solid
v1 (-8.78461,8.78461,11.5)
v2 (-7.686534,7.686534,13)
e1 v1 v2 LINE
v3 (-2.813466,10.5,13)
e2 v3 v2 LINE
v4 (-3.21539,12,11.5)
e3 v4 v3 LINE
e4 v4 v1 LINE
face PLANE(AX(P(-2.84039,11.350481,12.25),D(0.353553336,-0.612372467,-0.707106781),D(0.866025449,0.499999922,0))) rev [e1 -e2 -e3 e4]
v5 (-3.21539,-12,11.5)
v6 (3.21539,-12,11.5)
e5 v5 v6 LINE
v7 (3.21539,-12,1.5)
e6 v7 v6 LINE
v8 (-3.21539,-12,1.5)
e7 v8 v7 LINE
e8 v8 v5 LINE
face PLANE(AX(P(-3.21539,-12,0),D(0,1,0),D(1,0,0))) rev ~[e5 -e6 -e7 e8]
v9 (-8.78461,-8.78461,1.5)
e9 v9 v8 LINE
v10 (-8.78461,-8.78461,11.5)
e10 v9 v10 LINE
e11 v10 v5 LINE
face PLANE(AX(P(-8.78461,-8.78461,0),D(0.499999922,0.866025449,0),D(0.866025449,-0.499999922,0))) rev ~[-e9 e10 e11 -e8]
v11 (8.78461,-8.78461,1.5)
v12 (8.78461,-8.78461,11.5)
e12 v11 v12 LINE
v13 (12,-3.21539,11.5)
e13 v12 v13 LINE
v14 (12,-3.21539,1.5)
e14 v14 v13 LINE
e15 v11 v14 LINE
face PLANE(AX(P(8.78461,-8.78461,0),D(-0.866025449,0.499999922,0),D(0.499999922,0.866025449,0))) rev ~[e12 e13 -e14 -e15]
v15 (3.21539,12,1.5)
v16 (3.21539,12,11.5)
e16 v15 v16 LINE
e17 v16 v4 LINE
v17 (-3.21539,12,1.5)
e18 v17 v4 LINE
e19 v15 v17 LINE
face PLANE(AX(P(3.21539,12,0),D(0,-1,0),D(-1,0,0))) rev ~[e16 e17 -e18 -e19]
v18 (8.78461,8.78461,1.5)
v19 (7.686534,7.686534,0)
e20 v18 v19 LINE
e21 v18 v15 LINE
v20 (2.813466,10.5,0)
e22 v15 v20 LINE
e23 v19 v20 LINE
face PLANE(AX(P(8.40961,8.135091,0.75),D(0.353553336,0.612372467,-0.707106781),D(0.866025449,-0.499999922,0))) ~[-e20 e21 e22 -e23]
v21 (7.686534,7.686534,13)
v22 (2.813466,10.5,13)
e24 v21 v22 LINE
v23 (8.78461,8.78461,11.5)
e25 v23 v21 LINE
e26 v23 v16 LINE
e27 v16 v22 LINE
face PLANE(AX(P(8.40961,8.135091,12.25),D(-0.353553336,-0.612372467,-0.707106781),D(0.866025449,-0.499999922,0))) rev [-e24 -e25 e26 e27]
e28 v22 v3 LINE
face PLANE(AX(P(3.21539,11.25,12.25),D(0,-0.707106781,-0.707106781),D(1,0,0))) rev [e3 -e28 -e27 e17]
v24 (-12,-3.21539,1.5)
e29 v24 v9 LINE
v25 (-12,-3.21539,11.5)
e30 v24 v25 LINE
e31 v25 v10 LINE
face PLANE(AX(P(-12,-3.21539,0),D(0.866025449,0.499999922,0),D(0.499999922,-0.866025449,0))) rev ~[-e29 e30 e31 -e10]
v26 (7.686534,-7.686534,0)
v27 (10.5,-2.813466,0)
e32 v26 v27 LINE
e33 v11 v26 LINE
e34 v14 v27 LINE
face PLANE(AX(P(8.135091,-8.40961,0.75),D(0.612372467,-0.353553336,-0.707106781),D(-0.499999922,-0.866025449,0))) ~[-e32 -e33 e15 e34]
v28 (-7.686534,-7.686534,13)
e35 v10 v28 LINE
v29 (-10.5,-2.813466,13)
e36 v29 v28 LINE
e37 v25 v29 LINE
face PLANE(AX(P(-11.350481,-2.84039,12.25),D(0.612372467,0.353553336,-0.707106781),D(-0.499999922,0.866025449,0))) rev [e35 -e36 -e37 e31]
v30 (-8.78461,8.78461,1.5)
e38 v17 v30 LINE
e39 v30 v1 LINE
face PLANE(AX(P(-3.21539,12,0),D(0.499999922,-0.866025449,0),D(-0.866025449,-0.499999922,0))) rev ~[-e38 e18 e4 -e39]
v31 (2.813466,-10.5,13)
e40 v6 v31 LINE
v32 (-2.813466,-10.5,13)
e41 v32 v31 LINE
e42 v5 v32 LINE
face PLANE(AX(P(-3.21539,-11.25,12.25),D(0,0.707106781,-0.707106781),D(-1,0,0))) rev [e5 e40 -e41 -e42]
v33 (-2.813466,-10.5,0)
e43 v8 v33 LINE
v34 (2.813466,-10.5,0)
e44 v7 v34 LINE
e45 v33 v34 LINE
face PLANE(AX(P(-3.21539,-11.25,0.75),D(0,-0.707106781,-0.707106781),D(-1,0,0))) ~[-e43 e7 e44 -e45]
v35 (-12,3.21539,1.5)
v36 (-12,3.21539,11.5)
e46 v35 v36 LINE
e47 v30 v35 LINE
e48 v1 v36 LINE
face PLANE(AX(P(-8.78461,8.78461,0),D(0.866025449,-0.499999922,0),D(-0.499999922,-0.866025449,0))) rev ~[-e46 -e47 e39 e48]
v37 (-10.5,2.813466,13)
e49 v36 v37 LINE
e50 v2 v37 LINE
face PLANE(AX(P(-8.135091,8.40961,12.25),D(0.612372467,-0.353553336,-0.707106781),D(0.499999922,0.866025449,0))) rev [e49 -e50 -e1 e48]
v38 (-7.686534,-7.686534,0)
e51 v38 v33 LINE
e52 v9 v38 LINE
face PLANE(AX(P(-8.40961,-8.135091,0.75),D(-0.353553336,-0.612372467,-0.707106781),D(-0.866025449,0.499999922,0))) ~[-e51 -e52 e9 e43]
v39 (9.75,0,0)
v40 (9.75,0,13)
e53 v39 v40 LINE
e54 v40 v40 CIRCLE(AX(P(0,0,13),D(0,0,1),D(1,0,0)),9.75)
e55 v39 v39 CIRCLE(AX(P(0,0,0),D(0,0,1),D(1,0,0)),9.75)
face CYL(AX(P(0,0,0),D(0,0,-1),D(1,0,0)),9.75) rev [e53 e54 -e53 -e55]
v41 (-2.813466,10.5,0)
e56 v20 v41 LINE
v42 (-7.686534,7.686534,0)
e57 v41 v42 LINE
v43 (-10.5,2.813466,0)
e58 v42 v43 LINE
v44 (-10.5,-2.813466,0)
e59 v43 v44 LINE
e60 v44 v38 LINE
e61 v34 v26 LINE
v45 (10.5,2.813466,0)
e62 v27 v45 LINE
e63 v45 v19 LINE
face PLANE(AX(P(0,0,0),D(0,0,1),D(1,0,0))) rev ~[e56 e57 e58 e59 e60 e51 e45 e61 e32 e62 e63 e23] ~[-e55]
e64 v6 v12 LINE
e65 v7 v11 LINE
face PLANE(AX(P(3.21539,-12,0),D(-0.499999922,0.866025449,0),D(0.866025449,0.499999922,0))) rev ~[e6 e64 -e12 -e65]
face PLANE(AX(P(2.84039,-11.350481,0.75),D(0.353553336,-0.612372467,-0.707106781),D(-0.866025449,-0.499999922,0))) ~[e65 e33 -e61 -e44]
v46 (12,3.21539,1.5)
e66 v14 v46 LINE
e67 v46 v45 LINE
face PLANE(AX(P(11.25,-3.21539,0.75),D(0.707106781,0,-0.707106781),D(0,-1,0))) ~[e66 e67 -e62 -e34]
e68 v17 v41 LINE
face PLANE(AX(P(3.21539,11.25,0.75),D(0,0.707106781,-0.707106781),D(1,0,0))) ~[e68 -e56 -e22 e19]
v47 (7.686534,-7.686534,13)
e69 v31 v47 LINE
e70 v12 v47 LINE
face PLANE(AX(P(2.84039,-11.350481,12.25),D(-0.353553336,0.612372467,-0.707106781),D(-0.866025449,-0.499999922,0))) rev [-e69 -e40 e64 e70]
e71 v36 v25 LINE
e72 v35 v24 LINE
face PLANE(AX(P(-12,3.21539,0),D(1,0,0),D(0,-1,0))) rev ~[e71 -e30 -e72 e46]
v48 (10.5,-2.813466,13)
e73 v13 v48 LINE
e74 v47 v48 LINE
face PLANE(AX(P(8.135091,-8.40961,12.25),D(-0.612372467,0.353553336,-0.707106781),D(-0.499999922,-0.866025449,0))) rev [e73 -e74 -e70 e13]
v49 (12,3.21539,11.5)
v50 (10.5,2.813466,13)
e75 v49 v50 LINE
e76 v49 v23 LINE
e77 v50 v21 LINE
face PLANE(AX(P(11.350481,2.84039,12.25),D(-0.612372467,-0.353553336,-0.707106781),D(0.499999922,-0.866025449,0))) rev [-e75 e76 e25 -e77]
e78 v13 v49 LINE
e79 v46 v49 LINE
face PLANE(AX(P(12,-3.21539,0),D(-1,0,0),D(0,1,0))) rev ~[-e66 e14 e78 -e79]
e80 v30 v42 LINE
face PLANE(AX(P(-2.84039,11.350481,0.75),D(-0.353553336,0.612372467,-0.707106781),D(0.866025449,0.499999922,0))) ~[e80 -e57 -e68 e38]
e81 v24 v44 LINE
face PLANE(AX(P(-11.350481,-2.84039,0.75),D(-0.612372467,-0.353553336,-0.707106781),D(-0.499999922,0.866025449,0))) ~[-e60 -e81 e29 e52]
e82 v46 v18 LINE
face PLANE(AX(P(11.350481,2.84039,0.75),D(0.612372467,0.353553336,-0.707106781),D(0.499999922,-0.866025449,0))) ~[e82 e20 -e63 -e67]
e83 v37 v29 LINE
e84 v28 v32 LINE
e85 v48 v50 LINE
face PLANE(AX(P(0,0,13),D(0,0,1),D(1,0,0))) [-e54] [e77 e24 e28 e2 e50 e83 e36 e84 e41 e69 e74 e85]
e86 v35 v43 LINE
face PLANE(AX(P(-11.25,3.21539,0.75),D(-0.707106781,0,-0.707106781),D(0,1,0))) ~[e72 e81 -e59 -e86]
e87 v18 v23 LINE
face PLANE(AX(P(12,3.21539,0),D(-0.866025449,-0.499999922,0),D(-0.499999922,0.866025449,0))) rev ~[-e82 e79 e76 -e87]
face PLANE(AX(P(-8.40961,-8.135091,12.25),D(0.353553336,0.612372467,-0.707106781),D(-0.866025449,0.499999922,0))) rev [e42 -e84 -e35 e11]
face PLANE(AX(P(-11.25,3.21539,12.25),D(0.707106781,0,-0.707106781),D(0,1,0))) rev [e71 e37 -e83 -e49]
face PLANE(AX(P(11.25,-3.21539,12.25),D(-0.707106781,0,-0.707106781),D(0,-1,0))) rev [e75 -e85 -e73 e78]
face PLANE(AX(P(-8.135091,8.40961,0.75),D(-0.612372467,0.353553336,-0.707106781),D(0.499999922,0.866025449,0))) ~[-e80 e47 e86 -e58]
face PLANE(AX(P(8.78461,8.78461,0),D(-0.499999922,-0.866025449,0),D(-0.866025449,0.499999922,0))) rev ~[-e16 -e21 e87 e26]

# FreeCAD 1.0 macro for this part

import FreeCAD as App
import Part
import Sketcher
Q = App.Units.Quantity


def edges_at(feature, points):
    """Names of the edges that pass closest to the given points."""
    edges = feature.Shape.Edges
    near = lambda p: min(range(len(edges)), key=lambda i: edges[i].distToShape(Part.Vertex(*p))[0])
    return sorted({f"Edge{near(p) + 1}" for p in points})

doc = App.newDocument("Part")
params = doc.addObject("Spreadsheet::Sheet", "Params")
for row, (alias, value) in enumerate([
    ("sketch1_diameter", "19.5 mm"),
    ("pad1_length", "13 mm"),
    ("chamfer_size", "1.5 mm"),
], start=1):
    params.set(f"A{row}", alias)
    params.set(f"B{row}", "=" + value)
    params.setAlias(f"B{row}", alias)

body = doc.addObject("PartDesign::Body", "Body")

# Sketch on XY plane
sketch1 = body.newObject("Sketcher::SketchObject", "Sketch")
sketch1.AttachmentSupport = (doc.getObject("XY_Plane"), [""])
sketch1.MapMode = "FlatFace"
sketch1.addGeometry([
    Part.LineSegment(App.Vector(12, -3, 0), App.Vector(12, 3, 0)),  # 0
    Part.LineSegment(App.Vector(12, 3, 0), App.Vector(9, 9, 0)),  # 1
    Part.LineSegment(App.Vector(9, 9, 0), App.Vector(3, 12, 0)),  # 2
    Part.LineSegment(App.Vector(3, 12, 0), App.Vector(-3, 12, 0)),  # 3
    Part.LineSegment(App.Vector(-3, 12, 0), App.Vector(-9, 9, 0)),  # 4
    Part.LineSegment(App.Vector(-9, 9, 0), App.Vector(-12, 3, 0)),  # 5
    Part.LineSegment(App.Vector(-12, 3, 0), App.Vector(-12, -3, 0)),  # 6
    Part.LineSegment(App.Vector(-12, -3, 0), App.Vector(-9, -9, 0)),  # 7
    Part.LineSegment(App.Vector(-9, -9, 0), App.Vector(-3, -12, 0)),  # 8
    Part.LineSegment(App.Vector(-3, -12, 0), App.Vector(3, -12, 0)),  # 9
    Part.LineSegment(App.Vector(3, -12, 0), App.Vector(9, -9, 0)),  # 10
    Part.LineSegment(App.Vector(9, -9, 0), App.Vector(12, -3, 0)),  # 11
    Part.Circle(App.Vector(0, 0, 0), App.Vector(0, 0, 1), 10),  # 12
], False)
sketch1.addConstraint([
    Sketcher.Constraint("Coincident", 0, 2, 1, 1),
    Sketcher.Constraint("Coincident", 1, 2, 2, 1),
    Sketcher.Constraint("Coincident", 2, 2, 3, 1),
    Sketcher.Constraint("Coincident", 3, 2, 4, 1),
    Sketcher.Constraint("Coincident", 4, 2, 5, 1),
    Sketcher.Constraint("Coincident", 5, 2, 6, 1),
    Sketcher.Constraint("Coincident", 6, 2, 7, 1),
    Sketcher.Constraint("Coincident", 7, 2, 8, 1),
    Sketcher.Constraint("Coincident", 8, 2, 9, 1),
    Sketcher.Constraint("Coincident", 9, 2, 10, 1),
    Sketcher.Constraint("Coincident", 10, 2, 11, 1),
    Sketcher.Constraint("Coincident", 11, 2, 0, 1),
    Sketcher.Constraint("Vertical", 0),
    Sketcher.Constraint("Horizontal", 3),
    Sketcher.Constraint("Vertical", 6),
    Sketcher.Constraint("Horizontal", 9),
    Sketcher.Constraint("Coincident", 12, 3, -1, 1),
    Sketcher.Constraint("Symmetric", 0, 2, 6, 2, -1, 1),
    Sketcher.Constraint("Symmetric", 1, 2, 7, 2, -1, 1),
    Sketcher.Constraint("Symmetric", 2, 2, 8, 2, -1, 1),
    Sketcher.Constraint("Symmetric", 4, 2, 10, 2, -1, 1),
    Sketcher.Constraint("Symmetric", 1, 2, 4, 2, -2),
    Sketcher.Constraint("Perpendicular", 1, 4),
    Sketcher.Constraint("Perpendicular", 2, 5),
    Sketcher.Constraint("Perpendicular", 7, 10),
    Sketcher.Constraint("Perpendicular", 8, 11),
    Sketcher.Constraint("Horizontal", 0, 2, 5, 2),
    Sketcher.Constraint("Equal", 9, 0),
    Sketcher.Constraint("Equal", 1, 2),
    Sketcher.Constraint("Diameter", 12, Q("19.5 mm")),
    Sketcher.Constraint("Angle", 1, Q("119.999995 deg")),
    Sketcher.Constraint("DistanceX", -1, 1, 0, 2, Q("12 mm")),
    Sketcher.Constraint("DistanceX", 3, 2, 1, 2, Q("12 mm")),
])
sketch1.setExpression("Constraints[29]", "Params.sketch1_diameter")
pad1 = body.newObject("PartDesign::Pad", "Pad")
pad1.Profile = sketch1
pad1.setExpression("Length", "Params.pad1_length")
doc.recompute()

chamfer = body.newObject("PartDesign::Chamfer", "Chamfer")
chamfer.Base = (pad1, edges_at(pad1, [
    (6, -10.392, 13),
    (10.392, -6, 13),
    (12, 0, 13),
    (10.392, 6, 13),
    (6, 10.392, 13),
    (0, 12, 13),
    (-6, 10.392, 13),
    (-10.392, 6, 13),
    (-12, 0, 13),
    (-10.392, -6, 13),
    (-6, -10.392, 13),
    (0, -12, 13),
    (12, 0, 0),
    (10.392, 6, 0),
    (6, 10.392, 0),
    (0, 12, 0),
    (-6, 10.392, 0),
    (-10.392, 6, 0),
    (-12, 0, 0),
    (-10.392, -6, 0),
    (-6, -10.392, 0),
    (0, -12, 0),
    (6, -10.392, 0),
    (10.392, -6, 0),
]))
chamfer.setExpression("Size", "Params.chamfer_size")

doc.recompute()
